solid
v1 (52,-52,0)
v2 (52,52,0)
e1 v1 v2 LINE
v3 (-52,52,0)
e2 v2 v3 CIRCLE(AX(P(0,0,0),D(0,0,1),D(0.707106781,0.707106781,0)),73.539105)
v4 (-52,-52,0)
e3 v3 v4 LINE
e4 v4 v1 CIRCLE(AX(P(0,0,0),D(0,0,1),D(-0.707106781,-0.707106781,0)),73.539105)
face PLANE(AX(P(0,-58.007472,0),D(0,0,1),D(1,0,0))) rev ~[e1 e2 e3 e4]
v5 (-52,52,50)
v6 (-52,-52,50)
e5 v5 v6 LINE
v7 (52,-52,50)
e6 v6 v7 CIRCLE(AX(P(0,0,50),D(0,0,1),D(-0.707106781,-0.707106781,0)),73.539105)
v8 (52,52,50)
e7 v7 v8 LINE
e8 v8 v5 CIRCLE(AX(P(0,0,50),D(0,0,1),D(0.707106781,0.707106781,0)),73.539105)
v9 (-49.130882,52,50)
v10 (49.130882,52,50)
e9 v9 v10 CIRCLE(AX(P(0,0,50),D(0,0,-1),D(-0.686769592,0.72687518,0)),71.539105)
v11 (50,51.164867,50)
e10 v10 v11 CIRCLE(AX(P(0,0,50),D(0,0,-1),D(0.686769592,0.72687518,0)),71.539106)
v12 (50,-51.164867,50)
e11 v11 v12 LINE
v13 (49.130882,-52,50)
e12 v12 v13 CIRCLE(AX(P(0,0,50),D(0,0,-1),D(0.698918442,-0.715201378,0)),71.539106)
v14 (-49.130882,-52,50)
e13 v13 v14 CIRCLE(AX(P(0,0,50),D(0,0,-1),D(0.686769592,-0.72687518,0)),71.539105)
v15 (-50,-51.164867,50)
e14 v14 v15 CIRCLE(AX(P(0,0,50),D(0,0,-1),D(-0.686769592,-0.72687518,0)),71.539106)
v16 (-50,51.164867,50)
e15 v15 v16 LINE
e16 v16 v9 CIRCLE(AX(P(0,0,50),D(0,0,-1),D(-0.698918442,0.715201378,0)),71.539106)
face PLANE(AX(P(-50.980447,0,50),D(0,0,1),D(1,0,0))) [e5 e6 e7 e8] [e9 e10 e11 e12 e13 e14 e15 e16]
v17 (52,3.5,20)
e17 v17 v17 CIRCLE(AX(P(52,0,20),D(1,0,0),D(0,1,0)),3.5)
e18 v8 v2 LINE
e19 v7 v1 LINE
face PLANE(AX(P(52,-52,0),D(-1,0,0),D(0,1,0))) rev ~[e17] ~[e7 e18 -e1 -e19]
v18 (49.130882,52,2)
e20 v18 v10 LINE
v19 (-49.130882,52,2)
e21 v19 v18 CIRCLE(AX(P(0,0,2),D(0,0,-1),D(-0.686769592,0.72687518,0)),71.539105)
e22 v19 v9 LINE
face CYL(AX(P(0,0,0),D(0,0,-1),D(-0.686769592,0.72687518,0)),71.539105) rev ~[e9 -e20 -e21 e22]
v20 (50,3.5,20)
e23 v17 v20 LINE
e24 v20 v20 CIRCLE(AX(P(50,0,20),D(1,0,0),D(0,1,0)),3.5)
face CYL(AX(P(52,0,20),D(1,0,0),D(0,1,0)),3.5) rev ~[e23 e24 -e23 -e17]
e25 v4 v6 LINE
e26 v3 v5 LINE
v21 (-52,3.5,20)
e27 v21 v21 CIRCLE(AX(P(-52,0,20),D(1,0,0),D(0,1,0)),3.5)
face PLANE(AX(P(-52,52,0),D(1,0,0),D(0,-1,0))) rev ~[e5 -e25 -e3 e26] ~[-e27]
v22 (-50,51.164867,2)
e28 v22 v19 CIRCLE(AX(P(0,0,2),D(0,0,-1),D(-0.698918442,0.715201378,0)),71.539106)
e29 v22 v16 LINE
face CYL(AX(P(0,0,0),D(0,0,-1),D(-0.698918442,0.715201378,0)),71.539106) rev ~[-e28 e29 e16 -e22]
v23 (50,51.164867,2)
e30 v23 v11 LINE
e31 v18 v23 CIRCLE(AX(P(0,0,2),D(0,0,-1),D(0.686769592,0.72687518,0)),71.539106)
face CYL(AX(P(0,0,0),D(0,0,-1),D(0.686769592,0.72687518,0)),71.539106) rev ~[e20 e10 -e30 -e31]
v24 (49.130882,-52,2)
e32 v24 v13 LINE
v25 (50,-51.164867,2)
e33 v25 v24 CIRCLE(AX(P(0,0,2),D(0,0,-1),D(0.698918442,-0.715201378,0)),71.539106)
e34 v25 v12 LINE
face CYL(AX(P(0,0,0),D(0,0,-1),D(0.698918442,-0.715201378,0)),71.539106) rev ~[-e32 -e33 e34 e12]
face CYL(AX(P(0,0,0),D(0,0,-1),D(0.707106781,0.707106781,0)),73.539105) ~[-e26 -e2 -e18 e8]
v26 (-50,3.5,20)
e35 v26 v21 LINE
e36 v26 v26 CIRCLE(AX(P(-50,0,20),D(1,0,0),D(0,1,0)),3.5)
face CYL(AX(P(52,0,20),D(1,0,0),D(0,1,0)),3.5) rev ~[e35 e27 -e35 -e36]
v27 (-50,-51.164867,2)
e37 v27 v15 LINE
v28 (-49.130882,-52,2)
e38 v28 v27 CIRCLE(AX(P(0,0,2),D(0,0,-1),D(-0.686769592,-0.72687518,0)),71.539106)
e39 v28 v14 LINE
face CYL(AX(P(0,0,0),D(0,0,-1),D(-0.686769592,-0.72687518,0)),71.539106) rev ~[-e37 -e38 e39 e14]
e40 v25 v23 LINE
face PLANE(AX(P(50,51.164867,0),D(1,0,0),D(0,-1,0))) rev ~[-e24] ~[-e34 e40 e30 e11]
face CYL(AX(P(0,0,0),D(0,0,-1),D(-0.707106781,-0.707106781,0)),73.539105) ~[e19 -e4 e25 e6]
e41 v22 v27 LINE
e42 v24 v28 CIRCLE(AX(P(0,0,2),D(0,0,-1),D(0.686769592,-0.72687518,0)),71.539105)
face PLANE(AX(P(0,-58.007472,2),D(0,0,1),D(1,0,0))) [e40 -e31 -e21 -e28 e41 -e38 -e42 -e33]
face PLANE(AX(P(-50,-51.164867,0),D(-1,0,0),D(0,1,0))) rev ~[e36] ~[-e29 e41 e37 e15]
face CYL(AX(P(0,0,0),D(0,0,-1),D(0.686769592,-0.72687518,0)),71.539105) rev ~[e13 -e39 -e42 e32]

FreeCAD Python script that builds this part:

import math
import FreeCAD as App
import Part
import Sketcher
from FreeCAD import Vector

doc = App.newDocument("Part")
body = doc.addObject("PartDesign::Body", "Body")

# Sketch on XY plane
sketch1 = body.newObject("Sketcher::SketchObject", "Sketch")
sketch1.AttachmentSupport = (doc.getObject("XY_Plane"), [""])
sketch1.MapMode = "FlatFace"
sketch1.addGeometry(Part.ArcOfCircle(Part.Circle(Vector(0, 0, 0), Vector(0, 0, 1), 74), math.radians(45), math.radians(135)), False)
sketch1.addGeometry(Part.LineSegment(Vector(-52, 52, 0), Vector(-52, -52, 0)), False)
sketch1.addGeometry(Part.ArcOfCircle(Part.Circle(Vector(0, 0, 0), Vector(0, 0, 1), 74), math.radians(-135), math.radians(-45)), False)
sketch1.addGeometry(Part.LineSegment(Vector(52, -52, 0), Vector(52, 52, 0)), False)
sketch1.addConstraint(Sketcher.Constraint("Coincident", 0, 2, 1, 1))
sketch1.addConstraint(Sketcher.Constraint("Coincident", 1, 2, 2, 1))
sketch1.addConstraint(Sketcher.Constraint("Coincident", 2, 2, 3, 1))
sketch1.addConstraint(Sketcher.Constraint("Coincident", 3, 2, 0, 1))
sketch1.addConstraint(Sketcher.Constraint("Vertical", 1))
sketch1.addConstraint(Sketcher.Constraint("Vertical", 3))
sketch1.addConstraint(Sketcher.Constraint("Coincident", 0, 3, -1, 1))
sketch1.addConstraint(Sketcher.Constraint("Coincident", 2, 3, -1, 1))
sketch1.addConstraint(Sketcher.Constraint("Equal", 0, 2))
sketch1.addConstraint(Sketcher.Constraint("Horizontal", 1, 2, 2, 2))
sketch1.addConstraint(Sketcher.Constraint("DistanceY", 1, 2, 1, 1, 104.0))
sketch1.addConstraint(Sketcher.Constraint("DistanceX", 0, 2, -1, 1, 52.0))
pad1 = body.newObject("PartDesign::Pad", "Pad")
pad1.Profile = sketch1
pad1.Length = 2

# Sketch on XY plane
sketch2 = body.newObject("Sketcher::SketchObject", "Sketch001")
sketch2.AttachmentSupport = (doc.getObject("XY_Plane"), [""])
sketch2.MapMode = "FlatFace"
sketch2.addGeometry(Part.ArcOfCircle(Part.Circle(Vector(0, 0, 0), Vector(0, 0, 1), 73.5), math.radians(-135), math.radians(-45)), False)
sketch2.addGeometry(Part.LineSegment(Vector(52, -52, 0), Vector(52, 52, 0)), False)
sketch2.addGeometry(Part.ArcOfCircle(Part.Circle(Vector(0, 0, 0), Vector(0, 0, 1), 73.5), math.radians(45), math.radians(135)), False)
sketch2.addGeometry(Part.LineSegment(Vector(-52, 52, 0), Vector(-52, -52, 0)), False)
sketch2.addGeometry(Part.LineSegment(Vector(-50, -51.2, 0), Vector(-50, 51.2, 0)), False)
sketch2.addGeometry(Part.ArcOfCircle(Part.Circle(Vector(0, 0, 0), Vector(0, 0, 1), 71.5), math.radians(133.37), math.radians(134.34)), False)
sketch2.addGeometry(Part.ArcOfCircle(Part.Circle(Vector(0, 0, 0), Vector(0, 0, 1), 71.5), math.radians(47), math.radians(133)), False)
sketch2.addGeometry(Part.ArcOfCircle(Part.Circle(Vector(0, 0, 0), Vector(0, 0, 1), 71.5), math.radians(45.66), math.radians(46.63)), False)
sketch2.addGeometry(Part.LineSegment(Vector(50, 51.2, 0), Vector(50, -51.2, 0)), False)
sketch2.addGeometry(Part.ArcOfCircle(Part.Circle(Vector(0, 0, 0), Vector(0, 0, 1), 71.5), math.radians(-46.63), math.radians(-45.66)), False)
sketch2.addGeometry(Part.ArcOfCircle(Part.Circle(Vector(0, 0, 0), Vector(0, 0, 1), 71.5), math.radians(-133), math.radians(-47)), False)
sketch2.addGeometry(Part.ArcOfCircle(Part.Circle(Vector(0, 0, 0), Vector(0, 0, 1), 71.5), math.radians(-134.34), math.radians(-133.37)), False)
sketch2.addConstraint(Sketcher.Constraint("Coincident", 0, 2, 1, 1))
sketch2.addConstraint(Sketcher.Constraint("Coincident", 1, 2, 2, 1))
sketch2.addConstraint(Sketcher.Constraint("Coincident", 2, 2, 3, 1))
sketch2.addConstraint(Sketcher.Constraint("Coincident", 3, 2, 0, 1))
sketch2.addConstraint(Sketcher.Constraint("Coincident", 4, 2, 5, 2))
sketch2.addConstraint(Sketcher.Constraint("Tangent", 5, 1, 6, 2))
sketch2.addConstraint(Sketcher.Constraint("Tangent", 6, 1, 7, 2))
sketch2.addConstraint(Sketcher.Constraint("Coincident", 7, 1, 8, 1))
sketch2.addConstraint(Sketcher.Constraint("Coincident", 8, 2, 9, 2))
sketch2.addConstraint(Sketcher.Constraint("Tangent", 9, 1, 10, 2))
sketch2.addConstraint(Sketcher.Constraint("Tangent", 10, 1, 11, 2))
sketch2.addConstraint(Sketcher.Constraint("Coincident", 11, 1, 4, 1))
sketch2.addConstraint(Sketcher.Constraint("Vertical", 1))
sketch2.addConstraint(Sketcher.Constraint("Vertical", 3))
sketch2.addConstraint(Sketcher.Constraint("Vertical", 4))
sketch2.addConstraint(Sketcher.Constraint("Vertical", 8))
sketch2.addConstraint(Sketcher.Constraint("Coincident", 0, 3, -1, 1))
sketch2.addConstraint(Sketcher.Constraint("Coincident", 2, 3, -1, 1))
sketch2.addConstraint(Sketcher.Constraint("Coincident", 5, 3, -1, 1))
sketch2.addConstraint(Sketcher.Constraint("Coincident", 7, 3, -1, 1))
sketch2.addConstraint(Sketcher.Constraint("Coincident", 9, 3, -1, 1))
sketch2.addConstraint(Sketcher.Constraint("Coincident", 11, 3, -1, 1))
sketch2.addConstraint(Sketcher.Constraint("Equal", 0, 2))
sketch2.addConstraint(Sketcher.Constraint("Equal", 7, 9))
sketch2.addConstraint(Sketcher.Constraint("Horizontal", 1, 2, 2, 2))
sketch2.addConstraint(Sketcher.Constraint("Horizontal", 2, 2, 5, 1))
sketch2.addConstraint(Sketcher.Constraint("Horizontal", 5, 1, 6, 1))
sketch2.addConstraint(Sketcher.Constraint("Horizontal", 4, 2, 7, 1))
sketch2.addConstraint(Sketcher.Constraint("Horizontal", 3, 2, 9, 1))
sketch2.addConstraint(Sketcher.Constraint("Horizontal", 9, 1, 10, 1))
sketch2.addConstraint(Sketcher.Constraint("DistanceY", 1, 1, 1, 2, 104.0))
sketch2.addConstraint(Sketcher.Constraint("DistanceX", -1, 1, 0, 2, 52.0))
sketch2.addConstraint(Sketcher.Constraint("DistanceX", 4, 2, -1, 1, 50.0))
sketch2.addConstraint(Sketcher.Constraint("Radius", 5, 71.539106))
pad2 = body.newObject("PartDesign::Pad", "Pad001")
pad2.Profile = sketch2
pad2.Length = 50

# Sketch on YZ plane
sketch3 = body.newObject("Sketcher::SketchObject", "Sketch002")
sketch3.AttachmentSupport = (doc.getObject("YZ_Plane"), [""])
sketch3.MapMode = "FlatFace"
sketch3.AttachmentOffset = App.Placement(Vector(0, 0, 52), App.Rotation())
sketch3.addGeometry(Part.Circle(Vector(0, 20, 0), Vector(0, 0, 1), 3.5), False)
sketch3.addConstraint(Sketcher.Constraint("PointOnObject", 0, 3, -2))
sketch3.addConstraint(Sketcher.Constraint("Diameter", 0, 7.0))
sketch3.addConstraint(Sketcher.Constraint("DistanceY", -1, 1, 0, 3, 20.0))
pocket1 = body.newObject("PartDesign::Pocket", "Pocket")
pocket1.Profile = sketch3
pocket1.Type = "ThroughAll"

doc.recompute()
